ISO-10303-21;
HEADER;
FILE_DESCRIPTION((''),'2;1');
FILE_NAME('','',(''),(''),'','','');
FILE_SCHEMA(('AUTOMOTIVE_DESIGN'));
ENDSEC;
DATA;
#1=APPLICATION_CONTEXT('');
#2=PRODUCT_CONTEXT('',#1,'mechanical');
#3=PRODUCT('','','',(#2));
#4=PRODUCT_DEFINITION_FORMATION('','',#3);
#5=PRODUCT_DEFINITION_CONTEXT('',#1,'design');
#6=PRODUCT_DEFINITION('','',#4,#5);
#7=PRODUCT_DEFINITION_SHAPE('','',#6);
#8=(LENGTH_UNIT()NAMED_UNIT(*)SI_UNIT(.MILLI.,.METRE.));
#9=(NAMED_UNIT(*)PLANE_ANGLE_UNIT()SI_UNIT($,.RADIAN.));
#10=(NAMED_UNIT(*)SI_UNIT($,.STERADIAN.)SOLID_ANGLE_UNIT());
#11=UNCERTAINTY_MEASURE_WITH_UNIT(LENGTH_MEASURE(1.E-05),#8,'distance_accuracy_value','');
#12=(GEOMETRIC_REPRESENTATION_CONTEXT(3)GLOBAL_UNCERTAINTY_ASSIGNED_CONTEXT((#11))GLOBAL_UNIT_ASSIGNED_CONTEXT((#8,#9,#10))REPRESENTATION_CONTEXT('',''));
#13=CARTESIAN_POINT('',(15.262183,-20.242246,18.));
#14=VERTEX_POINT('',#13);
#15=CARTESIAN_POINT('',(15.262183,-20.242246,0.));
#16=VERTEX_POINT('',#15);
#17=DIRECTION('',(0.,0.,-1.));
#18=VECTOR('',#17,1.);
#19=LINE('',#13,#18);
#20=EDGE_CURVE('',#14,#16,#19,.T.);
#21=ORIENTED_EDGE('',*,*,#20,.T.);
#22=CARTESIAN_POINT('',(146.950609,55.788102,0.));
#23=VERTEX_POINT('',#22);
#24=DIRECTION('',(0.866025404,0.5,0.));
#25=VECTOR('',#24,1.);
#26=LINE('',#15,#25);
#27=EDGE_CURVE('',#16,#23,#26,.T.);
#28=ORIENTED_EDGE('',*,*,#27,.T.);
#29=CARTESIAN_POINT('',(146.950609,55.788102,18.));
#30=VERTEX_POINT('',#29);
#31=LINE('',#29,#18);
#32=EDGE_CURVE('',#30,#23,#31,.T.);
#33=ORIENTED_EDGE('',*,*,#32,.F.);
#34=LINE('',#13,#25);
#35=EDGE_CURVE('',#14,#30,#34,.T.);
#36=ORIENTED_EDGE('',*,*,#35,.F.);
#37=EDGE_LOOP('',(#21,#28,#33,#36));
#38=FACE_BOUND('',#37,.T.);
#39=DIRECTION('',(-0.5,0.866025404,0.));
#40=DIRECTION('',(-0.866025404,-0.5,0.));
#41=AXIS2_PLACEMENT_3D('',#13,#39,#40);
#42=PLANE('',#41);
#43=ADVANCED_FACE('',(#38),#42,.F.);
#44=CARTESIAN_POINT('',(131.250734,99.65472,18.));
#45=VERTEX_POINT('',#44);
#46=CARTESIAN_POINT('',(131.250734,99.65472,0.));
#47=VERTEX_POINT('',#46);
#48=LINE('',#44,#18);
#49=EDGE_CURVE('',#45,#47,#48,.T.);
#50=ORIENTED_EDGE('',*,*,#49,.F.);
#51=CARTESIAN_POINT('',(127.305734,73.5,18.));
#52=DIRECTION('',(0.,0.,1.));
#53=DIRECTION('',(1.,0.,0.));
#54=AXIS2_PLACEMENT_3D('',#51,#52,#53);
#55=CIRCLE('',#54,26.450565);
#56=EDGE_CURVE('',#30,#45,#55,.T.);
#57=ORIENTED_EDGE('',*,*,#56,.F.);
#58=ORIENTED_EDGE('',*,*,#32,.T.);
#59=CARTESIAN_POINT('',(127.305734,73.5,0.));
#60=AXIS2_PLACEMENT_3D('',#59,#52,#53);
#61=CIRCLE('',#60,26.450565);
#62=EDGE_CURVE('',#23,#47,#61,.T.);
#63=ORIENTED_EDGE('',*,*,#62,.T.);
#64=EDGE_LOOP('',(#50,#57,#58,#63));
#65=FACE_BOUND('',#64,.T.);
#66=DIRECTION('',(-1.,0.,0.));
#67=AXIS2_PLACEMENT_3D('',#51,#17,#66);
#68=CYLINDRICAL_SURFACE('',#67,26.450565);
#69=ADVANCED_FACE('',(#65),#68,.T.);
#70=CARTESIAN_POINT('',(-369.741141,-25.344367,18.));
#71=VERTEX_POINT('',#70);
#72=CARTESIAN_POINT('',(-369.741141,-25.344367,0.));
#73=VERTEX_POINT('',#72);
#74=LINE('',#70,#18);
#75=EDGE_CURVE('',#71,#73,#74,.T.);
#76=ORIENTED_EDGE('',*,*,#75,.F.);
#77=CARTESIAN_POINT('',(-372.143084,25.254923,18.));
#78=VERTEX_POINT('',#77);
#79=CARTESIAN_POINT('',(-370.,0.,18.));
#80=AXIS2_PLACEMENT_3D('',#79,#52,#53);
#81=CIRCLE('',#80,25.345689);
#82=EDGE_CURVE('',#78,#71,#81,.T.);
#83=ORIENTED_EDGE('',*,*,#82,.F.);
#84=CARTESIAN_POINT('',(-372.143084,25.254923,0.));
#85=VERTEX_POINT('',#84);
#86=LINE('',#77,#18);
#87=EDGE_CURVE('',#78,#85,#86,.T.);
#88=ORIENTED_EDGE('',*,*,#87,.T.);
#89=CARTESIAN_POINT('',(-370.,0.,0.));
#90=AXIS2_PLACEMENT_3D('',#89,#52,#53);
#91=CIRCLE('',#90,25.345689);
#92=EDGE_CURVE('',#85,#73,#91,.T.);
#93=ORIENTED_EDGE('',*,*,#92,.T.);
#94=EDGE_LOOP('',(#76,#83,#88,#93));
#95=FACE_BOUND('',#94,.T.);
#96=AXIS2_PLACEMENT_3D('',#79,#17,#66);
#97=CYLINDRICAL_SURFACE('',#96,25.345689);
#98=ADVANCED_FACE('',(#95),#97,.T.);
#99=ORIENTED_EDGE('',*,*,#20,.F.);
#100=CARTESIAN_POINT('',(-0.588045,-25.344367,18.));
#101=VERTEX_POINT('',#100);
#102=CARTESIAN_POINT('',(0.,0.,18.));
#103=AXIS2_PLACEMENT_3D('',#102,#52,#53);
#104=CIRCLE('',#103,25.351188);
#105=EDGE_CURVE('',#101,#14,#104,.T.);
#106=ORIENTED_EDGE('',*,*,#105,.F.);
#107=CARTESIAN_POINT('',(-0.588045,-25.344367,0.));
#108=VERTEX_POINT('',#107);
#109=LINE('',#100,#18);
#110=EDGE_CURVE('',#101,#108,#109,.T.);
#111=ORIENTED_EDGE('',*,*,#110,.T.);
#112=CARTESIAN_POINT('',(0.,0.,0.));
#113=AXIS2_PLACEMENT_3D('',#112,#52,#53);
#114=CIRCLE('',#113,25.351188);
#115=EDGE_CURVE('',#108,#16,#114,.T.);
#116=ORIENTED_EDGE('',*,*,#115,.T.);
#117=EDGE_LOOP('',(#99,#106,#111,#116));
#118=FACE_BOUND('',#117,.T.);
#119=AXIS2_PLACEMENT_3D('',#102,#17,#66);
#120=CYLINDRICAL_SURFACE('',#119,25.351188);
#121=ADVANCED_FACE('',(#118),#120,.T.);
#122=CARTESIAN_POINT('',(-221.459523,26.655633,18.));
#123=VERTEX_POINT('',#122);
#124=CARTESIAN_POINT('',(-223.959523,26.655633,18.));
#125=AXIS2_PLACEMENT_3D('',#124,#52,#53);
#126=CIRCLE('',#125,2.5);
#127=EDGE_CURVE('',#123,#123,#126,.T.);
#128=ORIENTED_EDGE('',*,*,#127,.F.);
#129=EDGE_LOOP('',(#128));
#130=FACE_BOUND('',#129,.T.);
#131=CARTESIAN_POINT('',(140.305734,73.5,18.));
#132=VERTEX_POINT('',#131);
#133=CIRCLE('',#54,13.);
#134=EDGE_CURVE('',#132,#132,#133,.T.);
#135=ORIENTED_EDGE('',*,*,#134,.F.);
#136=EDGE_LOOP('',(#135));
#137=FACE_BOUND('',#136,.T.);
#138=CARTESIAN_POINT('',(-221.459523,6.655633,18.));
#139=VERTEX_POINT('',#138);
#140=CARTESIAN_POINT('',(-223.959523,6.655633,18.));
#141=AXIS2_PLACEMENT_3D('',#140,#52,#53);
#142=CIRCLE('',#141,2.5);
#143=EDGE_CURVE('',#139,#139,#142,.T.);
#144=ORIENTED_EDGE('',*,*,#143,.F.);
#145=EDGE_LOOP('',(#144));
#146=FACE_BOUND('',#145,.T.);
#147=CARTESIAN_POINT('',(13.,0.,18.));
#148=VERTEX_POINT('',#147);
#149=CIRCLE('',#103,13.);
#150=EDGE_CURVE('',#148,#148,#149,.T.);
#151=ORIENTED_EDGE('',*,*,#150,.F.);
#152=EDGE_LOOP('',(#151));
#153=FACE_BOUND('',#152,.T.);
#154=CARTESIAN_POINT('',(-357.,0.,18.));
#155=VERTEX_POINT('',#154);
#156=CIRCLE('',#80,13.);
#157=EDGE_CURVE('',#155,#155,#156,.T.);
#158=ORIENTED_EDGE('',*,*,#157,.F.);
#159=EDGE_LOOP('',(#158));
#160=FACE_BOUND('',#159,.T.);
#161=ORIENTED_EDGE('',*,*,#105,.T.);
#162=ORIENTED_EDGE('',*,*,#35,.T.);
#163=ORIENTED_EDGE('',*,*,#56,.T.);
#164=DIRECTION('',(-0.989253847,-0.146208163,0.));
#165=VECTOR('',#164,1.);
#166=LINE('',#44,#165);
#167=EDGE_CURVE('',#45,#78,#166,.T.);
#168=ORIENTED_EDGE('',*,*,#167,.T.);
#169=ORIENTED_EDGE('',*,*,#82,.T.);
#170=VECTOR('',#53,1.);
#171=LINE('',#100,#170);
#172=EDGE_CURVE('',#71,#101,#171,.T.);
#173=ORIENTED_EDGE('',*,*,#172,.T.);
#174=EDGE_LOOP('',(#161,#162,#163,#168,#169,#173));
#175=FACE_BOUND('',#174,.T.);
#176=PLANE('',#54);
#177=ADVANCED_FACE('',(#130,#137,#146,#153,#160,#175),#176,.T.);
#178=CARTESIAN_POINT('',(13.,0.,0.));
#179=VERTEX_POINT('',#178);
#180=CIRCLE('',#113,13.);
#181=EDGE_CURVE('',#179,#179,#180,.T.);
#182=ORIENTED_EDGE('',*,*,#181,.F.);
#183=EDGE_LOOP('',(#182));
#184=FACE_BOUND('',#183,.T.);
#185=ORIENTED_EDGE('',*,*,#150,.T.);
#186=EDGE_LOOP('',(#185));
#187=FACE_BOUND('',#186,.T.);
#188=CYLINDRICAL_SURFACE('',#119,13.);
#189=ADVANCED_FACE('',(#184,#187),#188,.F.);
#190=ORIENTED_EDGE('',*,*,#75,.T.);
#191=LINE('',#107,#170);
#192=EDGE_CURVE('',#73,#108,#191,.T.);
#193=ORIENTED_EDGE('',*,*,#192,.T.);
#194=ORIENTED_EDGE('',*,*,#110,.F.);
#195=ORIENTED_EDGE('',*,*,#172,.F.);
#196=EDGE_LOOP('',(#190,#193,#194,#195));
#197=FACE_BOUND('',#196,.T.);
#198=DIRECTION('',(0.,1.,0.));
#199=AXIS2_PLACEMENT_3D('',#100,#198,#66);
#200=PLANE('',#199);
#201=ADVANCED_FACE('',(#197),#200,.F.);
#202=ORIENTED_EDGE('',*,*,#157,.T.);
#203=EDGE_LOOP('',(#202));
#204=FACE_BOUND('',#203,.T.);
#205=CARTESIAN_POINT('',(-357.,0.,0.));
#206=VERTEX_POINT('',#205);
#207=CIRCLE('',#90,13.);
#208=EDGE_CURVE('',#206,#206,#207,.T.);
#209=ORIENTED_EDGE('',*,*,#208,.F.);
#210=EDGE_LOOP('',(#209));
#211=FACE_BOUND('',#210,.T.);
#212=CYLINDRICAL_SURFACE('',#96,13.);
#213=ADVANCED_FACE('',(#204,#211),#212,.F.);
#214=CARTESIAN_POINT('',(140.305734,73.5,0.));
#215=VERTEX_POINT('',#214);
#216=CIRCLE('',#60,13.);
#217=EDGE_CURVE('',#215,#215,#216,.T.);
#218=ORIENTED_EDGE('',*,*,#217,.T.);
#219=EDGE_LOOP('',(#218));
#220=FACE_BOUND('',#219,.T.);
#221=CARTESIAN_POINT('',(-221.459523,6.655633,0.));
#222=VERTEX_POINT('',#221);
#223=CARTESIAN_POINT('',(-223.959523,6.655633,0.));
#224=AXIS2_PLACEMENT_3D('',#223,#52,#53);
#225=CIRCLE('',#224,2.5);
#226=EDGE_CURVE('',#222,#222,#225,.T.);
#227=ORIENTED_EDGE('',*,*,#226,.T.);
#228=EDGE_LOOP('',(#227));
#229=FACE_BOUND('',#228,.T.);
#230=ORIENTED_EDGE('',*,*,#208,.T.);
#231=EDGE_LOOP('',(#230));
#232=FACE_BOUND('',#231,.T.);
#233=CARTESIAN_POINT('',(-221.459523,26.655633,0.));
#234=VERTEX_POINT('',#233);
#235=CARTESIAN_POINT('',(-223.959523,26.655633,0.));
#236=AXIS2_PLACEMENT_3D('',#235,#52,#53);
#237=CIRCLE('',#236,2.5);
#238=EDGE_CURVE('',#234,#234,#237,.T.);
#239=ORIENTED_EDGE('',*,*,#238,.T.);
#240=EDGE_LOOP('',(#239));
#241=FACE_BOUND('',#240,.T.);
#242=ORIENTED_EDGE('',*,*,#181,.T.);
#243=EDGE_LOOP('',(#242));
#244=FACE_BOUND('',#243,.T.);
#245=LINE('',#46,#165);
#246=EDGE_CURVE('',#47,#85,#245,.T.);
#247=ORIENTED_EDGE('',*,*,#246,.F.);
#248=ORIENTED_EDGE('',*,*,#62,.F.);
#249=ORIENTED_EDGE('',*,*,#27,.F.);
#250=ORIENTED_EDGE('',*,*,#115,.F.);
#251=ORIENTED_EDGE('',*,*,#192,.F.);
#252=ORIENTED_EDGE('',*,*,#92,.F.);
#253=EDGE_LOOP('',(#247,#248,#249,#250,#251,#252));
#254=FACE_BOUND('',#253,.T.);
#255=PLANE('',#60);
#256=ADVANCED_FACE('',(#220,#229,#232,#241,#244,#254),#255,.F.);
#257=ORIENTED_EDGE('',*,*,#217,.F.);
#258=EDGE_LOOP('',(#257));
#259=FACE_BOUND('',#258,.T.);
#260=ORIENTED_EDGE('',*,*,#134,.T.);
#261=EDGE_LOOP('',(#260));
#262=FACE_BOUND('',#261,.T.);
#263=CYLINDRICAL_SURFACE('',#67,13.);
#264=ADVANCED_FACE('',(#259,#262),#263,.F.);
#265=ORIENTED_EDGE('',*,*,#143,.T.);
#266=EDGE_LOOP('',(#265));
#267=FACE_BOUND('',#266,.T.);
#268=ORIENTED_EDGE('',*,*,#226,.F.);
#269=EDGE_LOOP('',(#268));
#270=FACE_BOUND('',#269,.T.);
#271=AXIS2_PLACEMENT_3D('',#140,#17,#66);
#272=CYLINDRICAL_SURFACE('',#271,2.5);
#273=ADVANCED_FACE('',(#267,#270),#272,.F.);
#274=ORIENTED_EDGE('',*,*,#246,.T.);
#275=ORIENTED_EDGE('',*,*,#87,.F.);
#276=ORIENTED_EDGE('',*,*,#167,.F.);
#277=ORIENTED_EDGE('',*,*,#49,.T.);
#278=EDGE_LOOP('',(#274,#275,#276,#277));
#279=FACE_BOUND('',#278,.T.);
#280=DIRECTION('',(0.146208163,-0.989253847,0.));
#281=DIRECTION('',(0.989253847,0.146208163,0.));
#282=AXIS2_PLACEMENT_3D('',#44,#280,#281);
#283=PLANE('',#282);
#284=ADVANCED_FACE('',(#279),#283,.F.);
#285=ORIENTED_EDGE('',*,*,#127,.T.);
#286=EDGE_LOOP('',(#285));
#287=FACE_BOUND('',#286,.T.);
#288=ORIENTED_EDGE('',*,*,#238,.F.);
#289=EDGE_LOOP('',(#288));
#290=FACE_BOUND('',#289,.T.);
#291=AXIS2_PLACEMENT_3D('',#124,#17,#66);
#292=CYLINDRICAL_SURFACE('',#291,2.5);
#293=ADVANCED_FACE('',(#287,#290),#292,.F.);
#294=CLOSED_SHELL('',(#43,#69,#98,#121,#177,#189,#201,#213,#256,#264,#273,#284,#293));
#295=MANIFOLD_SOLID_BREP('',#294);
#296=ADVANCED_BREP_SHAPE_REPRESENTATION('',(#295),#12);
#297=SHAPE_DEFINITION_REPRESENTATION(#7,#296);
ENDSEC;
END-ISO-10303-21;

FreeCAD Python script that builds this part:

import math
import FreeCAD as App
import Part
import Sketcher
from FreeCAD import Vector
Q = App.Units.Quantity

doc = App.newDocument("Part")
params = doc.addObject("Spreadsheet::Sheet", "Params")
for row, (alias, value) in enumerate([
    ("sketch1_diameter", "26 mm"),
    ("sketch1_diameter2", "5 mm"),
    ("pad1_length", "18 mm"),
], start=1):
    params.set(f"A{row}", alias)
    params.set(f"B{row}", "=" + value)
    params.setAlias(f"B{row}", alias)

body = doc.addObject("PartDesign::Body", "Body")

# Sketch on XY plane
sketch1 = body.newObject("Sketcher::SketchObject", "Sketch")
sketch1.AttachmentSupport = (doc.getObject("XY_Plane"), [""])
sketch1.MapMode = "FlatFace"
sketch1.addGeometry(Part.LineSegment(Vector(131.3, 99.7, 0), Vector(-372.1, 25.3, 0)), False)
sketch1.addGeometry(Part.ArcOfCircle(Part.Circle(Vector(-370, 0, 0), Vector(0, 0, 1), 25.3), math.radians(95), math.radians(271)), False)
sketch1.addGeometry(Part.LineSegment(Vector(-369.7, -25.3, 0), Vector(-0.6, -25.3, 0)), False)
sketch1.addGeometry(Part.ArcOfCircle(Part.Circle(Vector(0, 0, 0), Vector(0, 0, 1), 25.4), math.radians(-91), math.radians(-53)), False)
sketch1.addGeometry(Part.LineSegment(Vector(15.3, -20.2, 0), Vector(147, 55.8, 0)), False)
sketch1.addGeometry(Part.ArcOfCircle(Part.Circle(Vector(127.3, 73.5, 0), Vector(0, 0, 1), 26.5), math.radians(-42), math.radians(81)), False)
sketch1.addGeometry(Part.Circle(Vector(-370, 0, 0), Vector(0, 0, 1), 13), False)
sketch1.addGeometry(Part.Circle(Vector(-224, 6.7, 0), Vector(0, 0, 1), 2.5), False)
sketch1.addGeometry(Part.Circle(Vector(-224, 26.7, 0), Vector(0, 0, 1), 2.5), False)
sketch1.addGeometry(Part.Circle(Vector(0, 0, 0), Vector(0, 0, 1), 13), False)
sketch1.addGeometry(Part.Circle(Vector(127.3, 73.5, 0), Vector(0, 0, 1), 13), False)
sketch1.addConstraint(Sketcher.Constraint("Coincident", 0, 2, 1, 1))
sketch1.addConstraint(Sketcher.Constraint("Coincident", 1, 2, 2, 1))
sketch1.addConstraint(Sketcher.Constraint("Coincident", 2, 2, 3, 1))
sketch1.addConstraint(Sketcher.Constraint("Coincident", 3, 2, 4, 1))
sketch1.addConstraint(Sketcher.Constraint("Coincident", 4, 2, 5, 1))
sketch1.addConstraint(Sketcher.Constraint("Coincident", 5, 2, 0, 1))
sketch1.addConstraint(Sketcher.Constraint("Horizontal", 2))
sketch1.addConstraint(Sketcher.Constraint("Coincident", 3, 3, -1, 1))
sketch1.addConstraint(Sketcher.Constraint("Coincident", 9, 3, -1, 1))
sketch1.addConstraint(Sketcher.Constraint("Coincident", 6, 3, 1, 3))
sketch1.addConstraint(Sketcher.Constraint("Coincident", 10, 3, 5, 3))
sketch1.addConstraint(Sketcher.Constraint("Equal", 7, 8))
sketch1.addConstraint(Sketcher.Constraint("Equal", 6, 9))
sketch1.addConstraint(Sketcher.Constraint("Equal", 9, 10))
sketch1.addConstraint(Sketcher.Constraint("PointOnObject", 1, 3, -1))
sketch1.addConstraint(Sketcher.Constraint("Vertical", 7, 3, 8, 3))
sketch1.addConstraint(Sketcher.Constraint("Diameter", 6, Q("26 mm")))
sketch1.addConstraint(Sketcher.Constraint("Diameter", 7, Q("5 mm")))
sketch1.addConstraint(Sketcher.Constraint("Angle", 4, Q("30 deg")))
sketch1.addConstraint(Sketcher.Constraint("DistanceX", 1, 3, -1, 1, Q("370 mm")))
sketch1.addConstraint(Sketcher.Constraint("DistanceY", 7, 3, 8, 3, Q("20 mm")))
sketch1.addConstraint(Sketcher.Constraint("DistanceY", 1, 2, 7, 3, Q("32 mm")))
sketch1.addConstraint(Sketcher.Constraint("DistanceY", -1, 1, 5, 3, Q("73.5 mm")))
sketch1.addConstraint(Sketcher.Constraint("Radius", 1, Q("25.345689 mm")))
sketch1.addConstraint(Sketcher.Constraint("Radius", 3, Q("25.351188 mm")))
sketch1.addConstraint(Sketcher.Constraint("Radius", 5, Q("26.450565 mm")))
sketch1.addConstraint(Sketcher.Constraint("DistanceX", 5, 3, 5, 2, Q("3.945 mm")))
sketch1.addConstraint(Sketcher.Constraint("Distance", 0, Q("508.862129 mm")))
sketch1.addConstraint(Sketcher.Constraint("DistanceX", 2, 1, 2, 2, Q("369.153096 mm")))
sketch1.addConstraint(Sketcher.Constraint("DistanceX", -1, 1, 4, 2, Q("146.950609 mm")))
sketch1.addConstraint(Sketcher.Constraint("DistanceX", 0, 2, 8, 3, Q("148.183561 mm")))
sketch1.addConstraint(Sketcher.Constraint("DistanceY", 0, 2, 8, 3, Q("1.40071 mm")))
sketch1.setExpression("Constraints[16]", "Params.sketch1_diameter")
sketch1.setExpression("Constraints[17]", "Params.sketch1_diameter2")
pad1 = body.newObject("PartDesign::Pad", "Pad")
pad1.Profile = sketch1
pad1.setExpression("Length", "Params.pad1_length")

doc.recompute()
